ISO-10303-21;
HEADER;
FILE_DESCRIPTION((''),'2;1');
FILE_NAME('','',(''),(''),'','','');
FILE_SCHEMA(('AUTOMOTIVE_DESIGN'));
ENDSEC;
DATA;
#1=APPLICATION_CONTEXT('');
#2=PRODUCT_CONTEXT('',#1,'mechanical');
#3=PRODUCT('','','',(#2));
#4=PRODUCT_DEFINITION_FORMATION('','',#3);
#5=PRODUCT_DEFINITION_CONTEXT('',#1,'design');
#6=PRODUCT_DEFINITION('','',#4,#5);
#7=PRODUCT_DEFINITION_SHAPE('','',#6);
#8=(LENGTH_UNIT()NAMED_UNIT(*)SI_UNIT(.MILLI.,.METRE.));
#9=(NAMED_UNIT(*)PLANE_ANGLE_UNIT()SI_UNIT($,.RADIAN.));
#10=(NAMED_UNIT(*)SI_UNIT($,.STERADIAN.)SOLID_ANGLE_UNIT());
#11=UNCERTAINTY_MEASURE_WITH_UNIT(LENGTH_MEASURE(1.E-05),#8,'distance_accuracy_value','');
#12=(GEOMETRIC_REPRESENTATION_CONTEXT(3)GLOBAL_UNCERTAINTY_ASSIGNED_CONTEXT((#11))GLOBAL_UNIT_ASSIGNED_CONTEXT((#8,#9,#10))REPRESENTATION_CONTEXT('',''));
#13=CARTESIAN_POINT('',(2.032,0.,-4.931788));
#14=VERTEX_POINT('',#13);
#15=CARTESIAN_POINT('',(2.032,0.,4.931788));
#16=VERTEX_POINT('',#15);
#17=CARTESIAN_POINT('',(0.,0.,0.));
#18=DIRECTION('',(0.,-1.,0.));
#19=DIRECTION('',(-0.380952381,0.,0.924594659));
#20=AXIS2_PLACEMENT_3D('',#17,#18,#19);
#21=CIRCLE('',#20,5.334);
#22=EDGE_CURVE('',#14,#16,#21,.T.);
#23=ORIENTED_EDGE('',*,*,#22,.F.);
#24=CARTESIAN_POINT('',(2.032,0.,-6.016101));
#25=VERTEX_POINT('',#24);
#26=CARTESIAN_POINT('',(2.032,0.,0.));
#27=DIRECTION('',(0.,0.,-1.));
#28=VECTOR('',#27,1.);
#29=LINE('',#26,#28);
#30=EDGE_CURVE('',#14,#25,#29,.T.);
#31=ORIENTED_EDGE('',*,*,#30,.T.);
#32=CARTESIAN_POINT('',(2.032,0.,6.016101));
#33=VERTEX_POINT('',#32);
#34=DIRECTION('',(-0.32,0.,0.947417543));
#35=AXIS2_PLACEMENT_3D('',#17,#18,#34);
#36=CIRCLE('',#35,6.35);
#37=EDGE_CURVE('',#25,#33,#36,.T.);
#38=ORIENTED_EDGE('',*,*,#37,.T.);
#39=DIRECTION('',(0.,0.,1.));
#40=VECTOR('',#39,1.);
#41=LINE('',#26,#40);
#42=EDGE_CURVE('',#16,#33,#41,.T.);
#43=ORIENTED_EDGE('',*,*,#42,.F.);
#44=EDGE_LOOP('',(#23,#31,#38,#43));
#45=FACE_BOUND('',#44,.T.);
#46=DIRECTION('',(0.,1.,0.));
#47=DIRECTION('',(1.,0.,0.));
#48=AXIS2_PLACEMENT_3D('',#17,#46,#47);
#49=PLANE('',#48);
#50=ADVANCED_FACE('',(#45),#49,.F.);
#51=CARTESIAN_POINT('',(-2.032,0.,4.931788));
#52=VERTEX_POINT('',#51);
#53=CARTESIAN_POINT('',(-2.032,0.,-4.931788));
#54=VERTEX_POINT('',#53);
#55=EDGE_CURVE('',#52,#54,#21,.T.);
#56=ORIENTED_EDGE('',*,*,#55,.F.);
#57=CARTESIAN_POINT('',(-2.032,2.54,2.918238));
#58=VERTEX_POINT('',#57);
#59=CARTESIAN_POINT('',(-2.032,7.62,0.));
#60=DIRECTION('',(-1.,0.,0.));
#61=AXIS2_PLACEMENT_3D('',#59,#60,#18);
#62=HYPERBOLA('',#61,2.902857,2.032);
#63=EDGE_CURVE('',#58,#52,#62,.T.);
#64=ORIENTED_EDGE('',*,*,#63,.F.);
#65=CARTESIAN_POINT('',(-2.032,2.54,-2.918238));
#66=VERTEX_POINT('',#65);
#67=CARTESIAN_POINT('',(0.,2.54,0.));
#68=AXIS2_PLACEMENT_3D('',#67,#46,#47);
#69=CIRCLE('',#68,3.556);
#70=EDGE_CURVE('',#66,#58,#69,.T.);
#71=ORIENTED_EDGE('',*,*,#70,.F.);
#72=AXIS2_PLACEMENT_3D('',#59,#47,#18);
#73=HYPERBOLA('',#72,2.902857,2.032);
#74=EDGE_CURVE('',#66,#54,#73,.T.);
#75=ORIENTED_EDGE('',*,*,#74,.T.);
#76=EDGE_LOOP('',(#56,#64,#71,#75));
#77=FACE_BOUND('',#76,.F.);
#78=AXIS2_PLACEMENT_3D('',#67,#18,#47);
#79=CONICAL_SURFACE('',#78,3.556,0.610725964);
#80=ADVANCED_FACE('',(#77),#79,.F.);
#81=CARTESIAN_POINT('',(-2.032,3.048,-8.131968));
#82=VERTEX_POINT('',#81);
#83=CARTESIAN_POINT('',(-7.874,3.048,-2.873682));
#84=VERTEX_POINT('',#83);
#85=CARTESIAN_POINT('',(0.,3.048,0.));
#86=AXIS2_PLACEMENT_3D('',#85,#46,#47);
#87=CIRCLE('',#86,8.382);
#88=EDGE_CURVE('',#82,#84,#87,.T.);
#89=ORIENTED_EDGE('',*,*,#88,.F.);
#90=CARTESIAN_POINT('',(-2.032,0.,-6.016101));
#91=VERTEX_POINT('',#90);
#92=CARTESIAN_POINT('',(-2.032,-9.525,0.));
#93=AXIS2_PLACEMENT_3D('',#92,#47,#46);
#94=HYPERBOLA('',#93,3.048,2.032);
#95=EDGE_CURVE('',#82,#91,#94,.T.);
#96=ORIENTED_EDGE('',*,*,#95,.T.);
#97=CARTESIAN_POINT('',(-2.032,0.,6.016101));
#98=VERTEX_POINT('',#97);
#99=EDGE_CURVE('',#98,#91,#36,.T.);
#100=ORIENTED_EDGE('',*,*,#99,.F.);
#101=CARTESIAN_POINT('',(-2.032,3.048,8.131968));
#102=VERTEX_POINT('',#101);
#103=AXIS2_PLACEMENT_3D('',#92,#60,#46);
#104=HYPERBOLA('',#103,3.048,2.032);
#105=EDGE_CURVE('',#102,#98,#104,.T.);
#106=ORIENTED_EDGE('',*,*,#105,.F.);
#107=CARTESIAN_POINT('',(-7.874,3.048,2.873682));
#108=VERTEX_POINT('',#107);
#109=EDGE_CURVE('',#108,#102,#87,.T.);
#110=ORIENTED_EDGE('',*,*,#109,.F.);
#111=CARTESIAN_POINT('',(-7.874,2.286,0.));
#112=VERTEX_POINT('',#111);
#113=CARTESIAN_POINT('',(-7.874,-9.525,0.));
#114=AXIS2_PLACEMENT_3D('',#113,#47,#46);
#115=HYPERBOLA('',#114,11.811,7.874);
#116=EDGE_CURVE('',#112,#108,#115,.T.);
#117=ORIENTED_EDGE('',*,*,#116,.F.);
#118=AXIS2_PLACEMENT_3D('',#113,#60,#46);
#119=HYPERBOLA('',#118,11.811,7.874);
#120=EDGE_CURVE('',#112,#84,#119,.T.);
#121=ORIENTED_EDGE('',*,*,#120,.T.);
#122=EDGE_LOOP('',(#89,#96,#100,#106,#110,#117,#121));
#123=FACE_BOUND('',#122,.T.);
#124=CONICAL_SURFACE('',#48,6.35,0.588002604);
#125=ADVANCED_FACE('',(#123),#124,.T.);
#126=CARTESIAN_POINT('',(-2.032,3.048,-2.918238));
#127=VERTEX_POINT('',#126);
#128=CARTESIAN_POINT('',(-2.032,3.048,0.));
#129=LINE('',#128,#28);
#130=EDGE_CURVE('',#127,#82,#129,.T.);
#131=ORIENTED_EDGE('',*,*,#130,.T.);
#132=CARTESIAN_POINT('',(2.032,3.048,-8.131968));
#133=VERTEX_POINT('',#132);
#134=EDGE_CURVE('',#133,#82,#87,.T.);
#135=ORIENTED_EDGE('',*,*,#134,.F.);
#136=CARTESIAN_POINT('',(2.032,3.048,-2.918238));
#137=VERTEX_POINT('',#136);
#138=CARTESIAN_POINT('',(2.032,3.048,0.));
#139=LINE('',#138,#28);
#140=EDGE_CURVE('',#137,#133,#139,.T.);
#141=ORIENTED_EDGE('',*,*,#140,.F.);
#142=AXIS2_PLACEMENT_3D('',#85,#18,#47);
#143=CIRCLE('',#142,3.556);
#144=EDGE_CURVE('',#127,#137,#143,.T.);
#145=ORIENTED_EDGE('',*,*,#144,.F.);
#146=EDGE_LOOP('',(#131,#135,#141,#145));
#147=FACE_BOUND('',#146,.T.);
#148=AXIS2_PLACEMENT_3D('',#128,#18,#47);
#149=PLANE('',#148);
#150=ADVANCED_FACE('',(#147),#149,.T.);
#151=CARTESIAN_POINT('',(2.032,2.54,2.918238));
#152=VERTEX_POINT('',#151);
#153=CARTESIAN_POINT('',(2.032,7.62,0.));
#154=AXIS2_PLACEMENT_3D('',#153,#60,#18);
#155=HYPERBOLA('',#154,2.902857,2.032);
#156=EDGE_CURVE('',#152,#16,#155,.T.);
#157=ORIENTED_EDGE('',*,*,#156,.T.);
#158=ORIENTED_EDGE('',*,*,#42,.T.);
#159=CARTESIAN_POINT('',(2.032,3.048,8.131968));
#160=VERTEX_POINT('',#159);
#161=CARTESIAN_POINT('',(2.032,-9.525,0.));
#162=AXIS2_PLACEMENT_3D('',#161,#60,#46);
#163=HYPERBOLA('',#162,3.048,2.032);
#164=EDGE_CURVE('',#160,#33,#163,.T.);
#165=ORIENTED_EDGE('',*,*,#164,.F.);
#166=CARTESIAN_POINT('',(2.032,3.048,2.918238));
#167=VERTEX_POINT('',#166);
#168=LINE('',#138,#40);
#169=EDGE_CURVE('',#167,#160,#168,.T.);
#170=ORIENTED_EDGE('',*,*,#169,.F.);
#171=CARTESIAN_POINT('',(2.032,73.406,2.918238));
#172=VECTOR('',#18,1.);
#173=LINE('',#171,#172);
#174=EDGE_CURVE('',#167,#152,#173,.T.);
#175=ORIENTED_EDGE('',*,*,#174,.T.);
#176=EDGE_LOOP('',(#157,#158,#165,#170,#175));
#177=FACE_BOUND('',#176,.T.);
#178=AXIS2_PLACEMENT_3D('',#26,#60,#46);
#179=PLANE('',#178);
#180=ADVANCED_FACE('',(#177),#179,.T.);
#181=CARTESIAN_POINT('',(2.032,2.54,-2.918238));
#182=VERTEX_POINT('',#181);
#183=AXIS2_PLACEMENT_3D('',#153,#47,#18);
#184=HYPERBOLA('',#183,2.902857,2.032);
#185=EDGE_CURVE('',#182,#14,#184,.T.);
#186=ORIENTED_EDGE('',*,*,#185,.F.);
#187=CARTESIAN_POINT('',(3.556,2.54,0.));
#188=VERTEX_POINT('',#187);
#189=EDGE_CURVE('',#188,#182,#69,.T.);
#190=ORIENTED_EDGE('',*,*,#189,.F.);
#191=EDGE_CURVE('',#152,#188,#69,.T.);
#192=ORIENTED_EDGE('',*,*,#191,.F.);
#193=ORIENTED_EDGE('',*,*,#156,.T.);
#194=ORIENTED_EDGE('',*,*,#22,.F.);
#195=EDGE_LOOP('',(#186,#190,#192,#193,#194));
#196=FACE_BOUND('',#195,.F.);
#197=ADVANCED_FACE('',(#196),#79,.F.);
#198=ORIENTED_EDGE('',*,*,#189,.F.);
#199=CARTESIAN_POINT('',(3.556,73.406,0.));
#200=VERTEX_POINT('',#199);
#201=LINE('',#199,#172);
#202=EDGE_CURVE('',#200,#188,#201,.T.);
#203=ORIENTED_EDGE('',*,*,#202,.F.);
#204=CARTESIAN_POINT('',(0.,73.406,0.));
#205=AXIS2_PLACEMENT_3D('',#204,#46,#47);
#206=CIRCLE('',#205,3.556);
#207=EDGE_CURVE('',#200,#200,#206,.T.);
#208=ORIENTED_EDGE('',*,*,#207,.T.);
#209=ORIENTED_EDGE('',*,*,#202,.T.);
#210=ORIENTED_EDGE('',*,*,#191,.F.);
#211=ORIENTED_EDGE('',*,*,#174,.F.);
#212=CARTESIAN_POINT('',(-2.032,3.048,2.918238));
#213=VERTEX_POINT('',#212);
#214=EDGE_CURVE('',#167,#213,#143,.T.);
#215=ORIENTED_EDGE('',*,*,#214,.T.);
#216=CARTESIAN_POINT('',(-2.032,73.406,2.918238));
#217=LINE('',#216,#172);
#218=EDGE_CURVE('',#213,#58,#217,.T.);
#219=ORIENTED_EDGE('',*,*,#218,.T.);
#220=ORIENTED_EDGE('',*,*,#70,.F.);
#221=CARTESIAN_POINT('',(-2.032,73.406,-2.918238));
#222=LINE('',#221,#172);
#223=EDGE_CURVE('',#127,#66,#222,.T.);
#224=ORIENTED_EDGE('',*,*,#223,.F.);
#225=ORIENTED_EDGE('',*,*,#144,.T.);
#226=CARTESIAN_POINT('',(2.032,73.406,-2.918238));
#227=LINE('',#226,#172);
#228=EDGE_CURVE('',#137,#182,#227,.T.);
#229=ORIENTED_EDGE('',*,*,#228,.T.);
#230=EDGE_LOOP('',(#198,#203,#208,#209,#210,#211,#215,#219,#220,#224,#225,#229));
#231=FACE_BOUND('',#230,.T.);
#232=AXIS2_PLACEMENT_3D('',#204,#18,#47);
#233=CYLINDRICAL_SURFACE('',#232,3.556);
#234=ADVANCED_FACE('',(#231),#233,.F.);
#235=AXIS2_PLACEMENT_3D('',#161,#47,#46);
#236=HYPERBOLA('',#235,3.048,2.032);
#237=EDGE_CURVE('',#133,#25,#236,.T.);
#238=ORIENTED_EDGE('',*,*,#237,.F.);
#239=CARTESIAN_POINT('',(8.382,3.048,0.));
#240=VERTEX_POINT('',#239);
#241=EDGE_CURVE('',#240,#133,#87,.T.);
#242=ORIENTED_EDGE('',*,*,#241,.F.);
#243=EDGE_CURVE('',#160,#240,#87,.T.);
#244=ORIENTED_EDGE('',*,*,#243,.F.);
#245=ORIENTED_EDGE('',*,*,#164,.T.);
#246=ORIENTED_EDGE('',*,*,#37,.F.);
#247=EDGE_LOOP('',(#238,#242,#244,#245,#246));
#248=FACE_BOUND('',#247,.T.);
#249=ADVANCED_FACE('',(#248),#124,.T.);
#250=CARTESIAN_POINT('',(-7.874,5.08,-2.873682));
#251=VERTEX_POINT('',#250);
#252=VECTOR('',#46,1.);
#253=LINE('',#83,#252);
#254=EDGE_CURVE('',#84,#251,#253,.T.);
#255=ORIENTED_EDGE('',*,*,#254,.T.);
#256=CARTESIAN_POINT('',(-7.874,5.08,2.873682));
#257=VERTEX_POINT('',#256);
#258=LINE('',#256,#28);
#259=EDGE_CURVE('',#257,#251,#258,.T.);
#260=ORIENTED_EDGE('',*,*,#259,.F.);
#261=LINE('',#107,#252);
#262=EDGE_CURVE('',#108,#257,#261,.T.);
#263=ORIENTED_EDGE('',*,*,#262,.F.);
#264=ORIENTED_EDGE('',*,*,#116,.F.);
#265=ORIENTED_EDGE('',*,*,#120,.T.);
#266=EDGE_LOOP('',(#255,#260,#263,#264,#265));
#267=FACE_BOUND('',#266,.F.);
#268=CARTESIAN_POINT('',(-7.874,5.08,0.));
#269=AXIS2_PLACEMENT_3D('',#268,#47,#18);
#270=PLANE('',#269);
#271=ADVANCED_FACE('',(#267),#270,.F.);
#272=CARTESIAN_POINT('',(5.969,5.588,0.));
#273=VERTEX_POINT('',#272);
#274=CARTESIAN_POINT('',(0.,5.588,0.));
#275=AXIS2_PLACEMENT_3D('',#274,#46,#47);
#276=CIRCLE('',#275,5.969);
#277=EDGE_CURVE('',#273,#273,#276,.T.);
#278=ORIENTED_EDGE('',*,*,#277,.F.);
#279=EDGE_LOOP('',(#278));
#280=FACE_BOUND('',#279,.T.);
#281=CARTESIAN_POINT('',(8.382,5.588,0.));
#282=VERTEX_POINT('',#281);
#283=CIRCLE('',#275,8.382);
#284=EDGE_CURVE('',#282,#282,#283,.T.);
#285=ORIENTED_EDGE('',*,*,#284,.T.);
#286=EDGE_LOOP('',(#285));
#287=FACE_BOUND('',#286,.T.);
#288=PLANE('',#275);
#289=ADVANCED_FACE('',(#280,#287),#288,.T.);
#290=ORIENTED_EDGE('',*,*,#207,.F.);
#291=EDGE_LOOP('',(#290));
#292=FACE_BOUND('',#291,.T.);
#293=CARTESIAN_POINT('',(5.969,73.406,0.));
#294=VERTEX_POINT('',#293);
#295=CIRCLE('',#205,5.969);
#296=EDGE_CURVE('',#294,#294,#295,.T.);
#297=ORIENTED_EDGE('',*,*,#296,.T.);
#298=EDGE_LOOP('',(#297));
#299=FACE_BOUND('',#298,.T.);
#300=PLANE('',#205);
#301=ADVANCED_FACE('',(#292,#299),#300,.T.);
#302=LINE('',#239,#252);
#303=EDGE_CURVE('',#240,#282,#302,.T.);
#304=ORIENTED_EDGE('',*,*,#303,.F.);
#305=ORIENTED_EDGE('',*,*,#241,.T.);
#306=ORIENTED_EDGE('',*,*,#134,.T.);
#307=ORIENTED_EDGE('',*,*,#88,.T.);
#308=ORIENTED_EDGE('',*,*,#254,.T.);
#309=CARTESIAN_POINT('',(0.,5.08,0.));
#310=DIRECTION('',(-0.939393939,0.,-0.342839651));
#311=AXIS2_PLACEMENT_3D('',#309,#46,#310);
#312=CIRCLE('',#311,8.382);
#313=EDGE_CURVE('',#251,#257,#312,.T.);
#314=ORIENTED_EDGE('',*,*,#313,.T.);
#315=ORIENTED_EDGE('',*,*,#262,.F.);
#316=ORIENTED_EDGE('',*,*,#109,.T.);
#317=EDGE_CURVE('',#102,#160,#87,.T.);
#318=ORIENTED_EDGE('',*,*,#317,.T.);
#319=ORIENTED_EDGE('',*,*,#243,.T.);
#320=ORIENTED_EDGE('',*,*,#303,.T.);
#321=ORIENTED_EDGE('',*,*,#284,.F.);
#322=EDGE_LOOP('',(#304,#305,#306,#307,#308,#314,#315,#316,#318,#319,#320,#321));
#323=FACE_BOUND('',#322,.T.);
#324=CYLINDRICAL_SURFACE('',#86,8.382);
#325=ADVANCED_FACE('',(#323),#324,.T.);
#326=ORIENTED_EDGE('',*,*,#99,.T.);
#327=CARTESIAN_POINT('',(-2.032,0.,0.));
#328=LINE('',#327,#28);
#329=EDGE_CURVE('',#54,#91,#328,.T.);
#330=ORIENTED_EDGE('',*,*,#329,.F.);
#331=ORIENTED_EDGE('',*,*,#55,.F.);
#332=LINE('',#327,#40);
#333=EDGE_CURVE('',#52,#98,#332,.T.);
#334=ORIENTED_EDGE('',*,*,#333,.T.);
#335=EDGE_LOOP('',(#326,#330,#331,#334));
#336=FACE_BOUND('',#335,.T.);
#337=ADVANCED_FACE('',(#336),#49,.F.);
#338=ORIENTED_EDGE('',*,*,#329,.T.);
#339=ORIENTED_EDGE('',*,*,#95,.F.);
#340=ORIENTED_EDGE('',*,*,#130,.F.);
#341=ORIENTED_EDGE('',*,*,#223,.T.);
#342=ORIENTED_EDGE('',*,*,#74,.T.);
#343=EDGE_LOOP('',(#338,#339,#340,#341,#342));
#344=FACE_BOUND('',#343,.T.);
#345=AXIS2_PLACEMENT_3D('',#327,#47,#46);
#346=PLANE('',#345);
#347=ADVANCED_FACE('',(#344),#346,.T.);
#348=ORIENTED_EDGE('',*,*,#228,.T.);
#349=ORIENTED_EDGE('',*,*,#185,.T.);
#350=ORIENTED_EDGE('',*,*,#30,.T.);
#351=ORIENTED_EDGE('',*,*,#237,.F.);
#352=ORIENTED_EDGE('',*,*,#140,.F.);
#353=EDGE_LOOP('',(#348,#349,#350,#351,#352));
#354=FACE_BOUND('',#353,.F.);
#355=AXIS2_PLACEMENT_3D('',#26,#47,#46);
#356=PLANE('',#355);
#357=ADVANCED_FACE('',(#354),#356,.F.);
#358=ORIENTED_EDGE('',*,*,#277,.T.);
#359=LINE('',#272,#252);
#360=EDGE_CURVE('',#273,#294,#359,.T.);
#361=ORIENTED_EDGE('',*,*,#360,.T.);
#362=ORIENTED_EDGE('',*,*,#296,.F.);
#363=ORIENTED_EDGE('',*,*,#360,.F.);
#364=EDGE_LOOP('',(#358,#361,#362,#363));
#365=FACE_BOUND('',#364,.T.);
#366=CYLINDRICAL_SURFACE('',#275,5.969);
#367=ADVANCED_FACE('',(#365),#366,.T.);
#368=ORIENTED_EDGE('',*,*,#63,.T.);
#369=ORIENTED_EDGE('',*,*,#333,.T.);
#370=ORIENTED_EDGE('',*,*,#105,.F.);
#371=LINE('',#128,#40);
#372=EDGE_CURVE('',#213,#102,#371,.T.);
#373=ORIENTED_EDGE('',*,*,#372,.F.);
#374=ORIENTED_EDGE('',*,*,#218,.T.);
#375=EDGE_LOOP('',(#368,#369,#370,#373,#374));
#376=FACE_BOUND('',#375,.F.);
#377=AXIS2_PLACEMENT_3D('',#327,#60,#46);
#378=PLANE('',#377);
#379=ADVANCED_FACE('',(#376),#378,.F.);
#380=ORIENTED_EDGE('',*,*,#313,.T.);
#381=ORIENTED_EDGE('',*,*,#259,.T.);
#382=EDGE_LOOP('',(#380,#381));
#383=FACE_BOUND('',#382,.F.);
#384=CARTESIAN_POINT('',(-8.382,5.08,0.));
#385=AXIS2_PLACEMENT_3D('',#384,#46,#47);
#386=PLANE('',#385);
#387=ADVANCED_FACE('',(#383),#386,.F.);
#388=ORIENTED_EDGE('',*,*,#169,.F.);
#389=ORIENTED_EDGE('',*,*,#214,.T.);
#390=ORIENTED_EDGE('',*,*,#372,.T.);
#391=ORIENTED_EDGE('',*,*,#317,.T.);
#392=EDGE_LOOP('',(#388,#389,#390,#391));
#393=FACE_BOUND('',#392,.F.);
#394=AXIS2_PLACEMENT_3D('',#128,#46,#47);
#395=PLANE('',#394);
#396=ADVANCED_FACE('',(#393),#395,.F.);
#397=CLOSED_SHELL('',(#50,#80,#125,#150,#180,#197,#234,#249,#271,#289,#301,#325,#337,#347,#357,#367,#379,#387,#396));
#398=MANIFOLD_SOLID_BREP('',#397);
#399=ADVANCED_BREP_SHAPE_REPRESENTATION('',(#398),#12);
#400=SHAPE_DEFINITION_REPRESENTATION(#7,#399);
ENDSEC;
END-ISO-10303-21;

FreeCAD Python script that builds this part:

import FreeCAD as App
import Part
import Sketcher
Q = App.Units.Quantity


def edges_at(feature, points):
    """Names of the edges that pass closest to the given points."""
    edges = feature.Shape.Edges
    near = lambda p: min(range(len(edges)), key=lambda i: edges[i].distToShape(Part.Vertex(*p))[0])
    return sorted({f"Edge{near(p) + 1}" for p in points})


def add_polygon(sketch, points):
    """Adds a closed chain of lines whose ends are joined by coincident constraints."""
    first, n = sketch.GeometryCount, len(points)
    for a, b in zip(points, points[1:] + points[:1]):
        sketch.addGeometry(Part.LineSegment(App.Vector(*a, 0), App.Vector(*b, 0)), False)
    for i in range(n):
        sketch.addConstraint(Sketcher.Constraint("Coincident", first + i, 2, first + (i + 1) % n, 1))

doc = App.newDocument("Part")
body = doc.addObject("PartDesign::Body", "Body")

# Sketch on XY plane
sketch1 = doc.addObject("Sketcher::SketchObject", "Sketch")
body.addObject(sketch1)
sketch1.AttachmentSupport = (doc.XY_Plane, [""])
sketch1.MapMode = "FlatFace"
add_polygon(sketch1, [(3.6, 73.4), (3.6, 0), (6.3, 0), (8.4, 3), (8.4, 5.6), (6, 5.6), (6, 73.4)])  # lines 0-6
sketch1.addConstraint([
    Sketcher.Constraint("Vertical", 0),
    Sketcher.Constraint("Horizontal", 1),
    Sketcher.Constraint("Vertical", 3),
    Sketcher.Constraint("Horizontal", 4),
    Sketcher.Constraint("Vertical", 5),
    Sketcher.Constraint("Horizontal", 6),
    Sketcher.Constraint("PointOnObject", 0, 2, -1),
    Sketcher.Constraint("Equal", 4, 6),
    Sketcher.Constraint("DistanceY", 3, 1, 3, 2, Q("0.1 in")),
    Sketcher.Constraint("DistanceX", 1, 1, 1, 2, Q("0.11 in")),
    Sketcher.Constraint("DistanceY", 0, 2, 0, 1, Q("2.89 in")),
    Sketcher.Constraint("DistanceY", 5, 1, 5, 2, Q("2.67 in")),
    Sketcher.Constraint("DistanceX", 4, 2, 4, 1, Q("0.095 in")),
    Sketcher.Constraint("DistanceX", -1, 1, 0, 2, Q("0.14 in")),
])
revolution = doc.addObject("PartDesign::Revolution", "Revolution")
body.addObject(revolution)
revolution.Profile = sketch1
revolution.ReferenceAxis = (sketch1, ["V_Axis"])
revolution.Angle = 360
doc.recompute()

chamfer = doc.addObject("PartDesign::Chamfer", "Chamfer")
body.addObject(chamfer)
chamfer.Base = (revolution, edges_at(revolution, [(-3.556, 0, 0)]))
chamfer.ChamferType = "Two distances"
chamfer.Size = Q("0.07 in")
chamfer.Size2 = Q("0.1 in")
chamfer.FlipDirection = True

# Sketch on XY plane
sketch2 = doc.addObject("Sketcher::SketchObject", "Sketch001")
body.addObject(sketch2)
sketch2.AttachmentSupport = (doc.XY_Plane, [""])
sketch2.MapMode = "FlatFace"
add_polygon(sketch2, [(-2, 3), (-2, 0), (2, 0), (2, 3)])  # lines 0-3
sketch2.addConstraint([
    Sketcher.Constraint("Vertical", 0),
    Sketcher.Constraint("Horizontal", 1),
    Sketcher.Constraint("Vertical", 2),
    Sketcher.Constraint("Horizontal", 3),
    Sketcher.Constraint("Symmetric", 0, 2, 1, 2, -1, 1),
    Sketcher.Constraint("DistanceX", 1, 1, 1, 2, Q("0.16 in")),
    Sketcher.Constraint("DistanceY", 0, 2, 0, 1, Q("0.12 in")),
])
pocket1 = doc.addObject("PartDesign::Pocket", "Pocket")
body.addObject(pocket1)
pocket1.Profile = sketch2
pocket1.Type = "ThroughAll"
pocket1.Midplane = True

# Sketch on XY plane
sketch3 = doc.addObject("Sketcher::SketchObject", "Sketch002")
body.addObject(sketch3)
sketch3.AttachmentSupport = (doc.XY_Plane, [""])
sketch3.MapMode = "FlatFace"
add_polygon(sketch3, [(-7.9, 2.3), (-7.9, 5.1), (-8.4, 5.1), (-8.4, 3)])  # lines 0-3
sketch3.addConstraint([
    Sketcher.Constraint("Vertical", 0),
    Sketcher.Constraint("Horizontal", 1),
    Sketcher.Constraint("Vertical", 2),
    Sketcher.Constraint("DistanceX", 1, 2, 1, 1, Q("0.02 in")),
    Sketcher.Constraint("DistanceY", 0, 1, 0, 2, Q("0.11 in")),
    Sketcher.Constraint("DistanceY", 2, 2, 2, 1, Q("0.08 in")),
    Sketcher.Constraint("DistanceY", -1, 1, 0, 2, Q("0.2 in")),
    Sketcher.Constraint("DistanceX", 0, 2, -1, 1, Q("0.31 in")),
])
pocket2 = doc.addObject("PartDesign::Pocket", "Pocket001")
body.addObject(pocket2)
pocket2.Profile = sketch3
pocket2.Type = "ThroughAll"
pocket2.Midplane = True

doc.recompute()
